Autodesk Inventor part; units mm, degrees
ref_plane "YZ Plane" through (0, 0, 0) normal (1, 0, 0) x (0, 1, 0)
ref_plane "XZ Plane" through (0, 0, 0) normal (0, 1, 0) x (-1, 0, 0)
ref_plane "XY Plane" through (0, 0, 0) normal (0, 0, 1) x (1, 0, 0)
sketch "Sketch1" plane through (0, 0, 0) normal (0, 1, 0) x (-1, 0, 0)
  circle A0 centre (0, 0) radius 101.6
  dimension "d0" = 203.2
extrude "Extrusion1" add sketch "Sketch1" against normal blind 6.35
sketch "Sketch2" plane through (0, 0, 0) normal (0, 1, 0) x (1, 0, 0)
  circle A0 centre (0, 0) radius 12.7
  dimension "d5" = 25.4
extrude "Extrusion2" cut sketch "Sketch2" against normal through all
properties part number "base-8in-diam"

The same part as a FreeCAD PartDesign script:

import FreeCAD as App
import Part
import Sketcher
from FreeCAD import Vector
Q = App.Units.Quantity

doc = App.newDocument("Part")
body = doc.addObject("PartDesign::Body", "Body")

# Sketch on XZ plane
sketch1 = doc.addObject("Sketcher::SketchObject", "Sketch")
body.addObject(sketch1)
sketch1.AttachmentSupport = (doc.XZ_Plane, [""])
sketch1.MapMode = "FlatFace"
sketch1.addGeometry(Part.Circle(Vector(0, 0, 0), Vector(0, 0, 1), 102), False)
sketch1.addConstraint([
    Sketcher.Constraint("Coincident", 0, 3, -1, 1),
    Sketcher.Constraint("Diameter", 0, Q("8 in")),
])
pad1 = doc.addObject("PartDesign::Pad", "Pad")
body.addObject(pad1)
pad1.Profile = sketch1
pad1.Length = Q("0.25 in")

# Sketch on XZ plane
sketch2 = doc.addObject("Sketcher::SketchObject", "Sketch001")
body.addObject(sketch2)
sketch2.AttachmentSupport = (doc.XZ_Plane, [""])
sketch2.MapMode = "FlatFace"
sketch2.addGeometry(Part.Circle(Vector(0, 0, 0), Vector(0, 0, 1), 13), False)
sketch2.addConstraint([
    Sketcher.Constraint("Coincident", 0, 3, -1, 1),
    Sketcher.Constraint("Diameter", 0, Q("1 in")),
])
pocket1 = doc.addObject("PartDesign::Pocket", "Pocket")
body.addObject(pocket1)
pocket1.Profile = sketch2
pocket1.Type = "ThroughAll"
pocket1.Reversed = True

doc.recompute()
